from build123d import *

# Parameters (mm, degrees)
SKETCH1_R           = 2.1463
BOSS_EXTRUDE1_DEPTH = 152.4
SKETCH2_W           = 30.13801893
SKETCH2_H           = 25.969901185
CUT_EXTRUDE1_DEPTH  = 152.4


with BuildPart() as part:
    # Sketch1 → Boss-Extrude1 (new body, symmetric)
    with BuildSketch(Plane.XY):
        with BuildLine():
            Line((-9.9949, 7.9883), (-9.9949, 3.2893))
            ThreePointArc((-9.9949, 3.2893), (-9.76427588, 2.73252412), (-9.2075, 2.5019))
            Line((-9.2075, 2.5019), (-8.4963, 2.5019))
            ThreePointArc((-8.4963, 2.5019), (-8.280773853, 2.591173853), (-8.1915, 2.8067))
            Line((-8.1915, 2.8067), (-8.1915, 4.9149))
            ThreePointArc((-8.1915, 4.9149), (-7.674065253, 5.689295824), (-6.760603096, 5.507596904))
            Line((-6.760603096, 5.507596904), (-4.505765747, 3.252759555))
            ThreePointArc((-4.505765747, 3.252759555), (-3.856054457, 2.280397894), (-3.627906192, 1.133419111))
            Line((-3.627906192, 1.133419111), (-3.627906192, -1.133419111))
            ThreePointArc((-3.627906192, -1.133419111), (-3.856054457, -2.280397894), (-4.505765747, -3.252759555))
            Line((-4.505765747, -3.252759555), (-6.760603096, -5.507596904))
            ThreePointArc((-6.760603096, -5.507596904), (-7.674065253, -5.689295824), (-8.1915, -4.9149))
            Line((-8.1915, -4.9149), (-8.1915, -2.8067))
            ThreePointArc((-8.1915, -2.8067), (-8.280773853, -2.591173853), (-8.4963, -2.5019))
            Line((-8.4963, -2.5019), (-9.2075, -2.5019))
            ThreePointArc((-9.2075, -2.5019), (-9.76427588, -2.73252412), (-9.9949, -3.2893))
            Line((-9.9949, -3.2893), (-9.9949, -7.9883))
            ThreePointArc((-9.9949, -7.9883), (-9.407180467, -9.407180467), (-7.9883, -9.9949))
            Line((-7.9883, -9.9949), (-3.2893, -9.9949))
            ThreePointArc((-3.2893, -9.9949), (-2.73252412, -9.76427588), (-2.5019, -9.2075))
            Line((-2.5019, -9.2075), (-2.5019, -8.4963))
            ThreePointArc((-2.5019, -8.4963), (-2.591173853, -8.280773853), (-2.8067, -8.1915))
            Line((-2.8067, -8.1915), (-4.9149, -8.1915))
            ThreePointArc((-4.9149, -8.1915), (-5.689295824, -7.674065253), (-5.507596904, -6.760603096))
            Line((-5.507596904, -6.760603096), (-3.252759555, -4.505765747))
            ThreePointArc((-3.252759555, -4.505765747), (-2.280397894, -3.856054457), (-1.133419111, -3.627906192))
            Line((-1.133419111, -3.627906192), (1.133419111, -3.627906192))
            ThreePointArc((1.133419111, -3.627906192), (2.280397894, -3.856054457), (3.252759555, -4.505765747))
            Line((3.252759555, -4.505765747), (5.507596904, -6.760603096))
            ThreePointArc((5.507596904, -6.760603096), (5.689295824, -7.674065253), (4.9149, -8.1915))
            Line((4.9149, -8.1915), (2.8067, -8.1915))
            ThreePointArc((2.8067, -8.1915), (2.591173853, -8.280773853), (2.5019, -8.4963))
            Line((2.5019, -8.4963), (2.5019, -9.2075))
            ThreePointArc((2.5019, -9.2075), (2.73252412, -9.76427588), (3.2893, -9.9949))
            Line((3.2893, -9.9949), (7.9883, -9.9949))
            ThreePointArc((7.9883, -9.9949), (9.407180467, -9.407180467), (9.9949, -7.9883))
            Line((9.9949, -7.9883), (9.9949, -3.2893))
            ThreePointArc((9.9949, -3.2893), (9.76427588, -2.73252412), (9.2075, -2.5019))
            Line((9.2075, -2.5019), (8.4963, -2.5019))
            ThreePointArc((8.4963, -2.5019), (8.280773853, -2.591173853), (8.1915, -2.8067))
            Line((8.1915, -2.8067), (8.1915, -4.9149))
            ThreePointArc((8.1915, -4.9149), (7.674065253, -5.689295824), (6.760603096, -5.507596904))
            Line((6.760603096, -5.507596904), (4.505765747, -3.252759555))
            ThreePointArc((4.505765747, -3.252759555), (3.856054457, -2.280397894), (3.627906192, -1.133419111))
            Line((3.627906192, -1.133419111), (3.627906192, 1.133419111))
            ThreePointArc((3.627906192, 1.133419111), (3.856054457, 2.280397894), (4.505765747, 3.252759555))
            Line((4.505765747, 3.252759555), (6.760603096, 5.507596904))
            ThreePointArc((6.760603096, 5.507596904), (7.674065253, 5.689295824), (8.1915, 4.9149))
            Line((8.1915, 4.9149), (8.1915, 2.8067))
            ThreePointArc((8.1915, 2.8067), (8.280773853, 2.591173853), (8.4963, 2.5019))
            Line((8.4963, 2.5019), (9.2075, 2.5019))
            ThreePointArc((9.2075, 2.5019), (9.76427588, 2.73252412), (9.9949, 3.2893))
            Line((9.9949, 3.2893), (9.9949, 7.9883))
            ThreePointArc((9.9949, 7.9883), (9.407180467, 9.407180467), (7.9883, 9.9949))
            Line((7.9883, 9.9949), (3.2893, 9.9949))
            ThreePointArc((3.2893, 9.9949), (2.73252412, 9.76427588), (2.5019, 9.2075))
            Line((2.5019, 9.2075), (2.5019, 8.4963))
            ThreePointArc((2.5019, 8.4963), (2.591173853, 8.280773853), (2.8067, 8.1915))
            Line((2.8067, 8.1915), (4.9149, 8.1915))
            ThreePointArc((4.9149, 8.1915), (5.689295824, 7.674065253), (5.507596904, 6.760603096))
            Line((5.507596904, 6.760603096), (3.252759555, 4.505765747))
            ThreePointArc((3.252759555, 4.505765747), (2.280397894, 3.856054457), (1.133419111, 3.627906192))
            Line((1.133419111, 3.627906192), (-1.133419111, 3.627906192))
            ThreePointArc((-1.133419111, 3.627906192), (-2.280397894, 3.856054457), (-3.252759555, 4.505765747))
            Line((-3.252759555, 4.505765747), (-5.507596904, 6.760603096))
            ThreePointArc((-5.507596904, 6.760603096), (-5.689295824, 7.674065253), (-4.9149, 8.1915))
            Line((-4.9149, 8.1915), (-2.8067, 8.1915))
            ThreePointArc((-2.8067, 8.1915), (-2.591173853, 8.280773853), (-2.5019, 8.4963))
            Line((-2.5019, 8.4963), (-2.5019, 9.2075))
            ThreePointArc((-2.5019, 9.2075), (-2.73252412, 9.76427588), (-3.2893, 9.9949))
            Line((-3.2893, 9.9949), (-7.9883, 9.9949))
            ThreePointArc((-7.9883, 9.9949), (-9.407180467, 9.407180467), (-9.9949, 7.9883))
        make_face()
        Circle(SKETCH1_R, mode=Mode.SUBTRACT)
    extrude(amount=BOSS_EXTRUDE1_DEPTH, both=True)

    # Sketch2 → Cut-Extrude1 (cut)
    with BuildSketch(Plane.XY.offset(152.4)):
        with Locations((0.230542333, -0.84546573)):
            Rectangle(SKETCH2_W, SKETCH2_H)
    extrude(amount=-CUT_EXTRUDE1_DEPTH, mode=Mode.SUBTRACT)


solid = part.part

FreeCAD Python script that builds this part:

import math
import FreeCAD as App
import Part
import Sketcher
Q = App.Units.Quantity

doc = App.newDocument("Part")
body = doc.addObject("PartDesign::Body", "Body")

# Sketch on XY plane
sketch1 = doc.addObject("Sketcher::SketchObject", "Sketch")
body.addObject(sketch1)
sketch1.AttachmentSupport = (doc.XY_Plane, [""])
sketch1.MapMode = "FlatFace"
sketch1.addGeometry([
    Part.LineSegment(App.Vector(-9.99, 7.99, 0), App.Vector(-9.99, 3.29, 0)),  # 0
    Part.ArcOfCircle(Part.Circle(App.Vector(-9.21, 3.29, 0), App.Vector(0, 0, 1), 0.79), math.radians(180), math.radians(270)),  # 1
    Part.LineSegment(App.Vector(-9.21, 2.5, 0), App.Vector(-8.5, 2.5, 0)),  # 2
    Part.ArcOfCircle(Part.Circle(App.Vector(-8.5, 2.81, 0), App.Vector(0, 0, 1), 0.3), math.radians(-90), math.radians(0)),  # 3
    Part.LineSegment(App.Vector(-8.19, 2.81, 0), App.Vector(-8.19, 4.91, 0)),  # 4
    Part.ArcOfCircle(Part.Circle(App.Vector(-7.35, 4.91, 0), App.Vector(0, 0, 1), 0.84), math.radians(45), math.radians(180)),  # 5
    Part.LineSegment(App.Vector(-6.76, 5.51, 0), App.Vector(-4.51, 3.25, 0)),  # 6
    Part.ArcOfCircle(Part.Circle(App.Vector(-6.63, 1.13, 0), App.Vector(0, 0, 1), 3), math.radians(0), math.radians(45)),  # 7
    Part.LineSegment(App.Vector(-3.63, 1.13, 0), App.Vector(-3.63, -1.13, 0)),  # 8
    Part.ArcOfCircle(Part.Circle(App.Vector(-6.63, -1.13, 0), App.Vector(0, 0, 1), 3), math.radians(-45), math.radians(0)),  # 9
    Part.LineSegment(App.Vector(-4.51, -3.25, 0), App.Vector(-6.76, -5.51, 0)),  # 10
    Part.ArcOfCircle(Part.Circle(App.Vector(-7.35, -4.91, 0), App.Vector(0, 0, 1), 0.84), math.radians(180), math.radians(315)),  # 11
    Part.LineSegment(App.Vector(-8.19, -4.91, 0), App.Vector(-8.19, -2.81, 0)),  # 12
    Part.ArcOfCircle(Part.Circle(App.Vector(-8.5, -2.81, 0), App.Vector(0, 0, 1), 0.3), math.radians(0), math.radians(90)),  # 13
    Part.LineSegment(App.Vector(-8.5, -2.5, 0), App.Vector(-9.21, -2.5, 0)),  # 14
    Part.ArcOfCircle(Part.Circle(App.Vector(-9.21, -3.29, 0), App.Vector(0, 0, 1), 0.79), math.radians(90), math.radians(180)),  # 15
    Part.LineSegment(App.Vector(-9.99, -3.29, 0), App.Vector(-9.99, -7.99, 0)),  # 16
    Part.ArcOfCircle(Part.Circle(App.Vector(-7.99, -7.99, 0), App.Vector(0, 0, 1), 2.01), math.radians(180), math.radians(270)),  # 17
    Part.LineSegment(App.Vector(-7.99, -9.99, 0), App.Vector(-3.29, -9.99, 0)),  # 18
    Part.ArcOfCircle(Part.Circle(App.Vector(-3.29, -9.21, 0), App.Vector(0, 0, 1), 0.79), math.radians(-90), math.radians(0)),  # 19
    Part.LineSegment(App.Vector(-2.5, -9.21, 0), App.Vector(-2.5, -8.5, 0)),  # 20
    Part.ArcOfCircle(Part.Circle(App.Vector(-2.81, -8.5, 0), App.Vector(0, 0, 1), 0.3), math.radians(0), math.radians(90)),  # 21
    Part.LineSegment(App.Vector(-2.81, -8.19, 0), App.Vector(-4.91, -8.19, 0)),  # 22
    Part.ArcOfCircle(Part.Circle(App.Vector(-4.91, -7.35, 0), App.Vector(0, 0, 1), 0.84), math.radians(135), math.radians(270)),  # 23
    Part.LineSegment(App.Vector(-5.51, -6.76, 0), App.Vector(-3.25, -4.51, 0)),  # 24
    Part.ArcOfCircle(Part.Circle(App.Vector(-1.13, -6.63, 0), App.Vector(0, 0, 1), 3), math.radians(90), math.radians(135)),  # 25
    Part.LineSegment(App.Vector(-1.13, -3.63, 0), App.Vector(1.13, -3.63, 0)),  # 26
    Part.ArcOfCircle(Part.Circle(App.Vector(1.13, -6.63, 0), App.Vector(0, 0, 1), 3), math.radians(45), math.radians(90)),  # 27
    Part.LineSegment(App.Vector(3.25, -4.51, 0), App.Vector(5.51, -6.76, 0)),  # 28
    Part.ArcOfCircle(Part.Circle(App.Vector(4.91, -7.35, 0), App.Vector(0, 0, 1), 0.84), math.radians(-90), math.radians(45)),  # 29
    Part.LineSegment(App.Vector(4.91, -8.19, 0), App.Vector(2.81, -8.19, 0)),  # 30
    Part.ArcOfCircle(Part.Circle(App.Vector(2.81, -8.5, 0), App.Vector(0, 0, 1), 0.3), math.radians(90), math.radians(180)),  # 31
    Part.LineSegment(App.Vector(2.5, -8.5, 0), App.Vector(2.5, -9.21, 0)),  # 32
    Part.ArcOfCircle(Part.Circle(App.Vector(3.29, -9.21, 0), App.Vector(0, 0, 1), 0.79), math.radians(180), math.radians(270)),  # 33
    Part.LineSegment(App.Vector(3.29, -9.99, 0), App.Vector(7.99, -9.99, 0)),  # 34
    Part.ArcOfCircle(Part.Circle(App.Vector(7.99, -7.99, 0), App.Vector(0, 0, 1), 2.01), math.radians(-90), math.radians(0)),  # 35
    Part.LineSegment(App.Vector(9.99, -7.99, 0), App.Vector(9.99, -3.29, 0)),  # 36
    Part.ArcOfCircle(Part.Circle(App.Vector(9.21, -3.29, 0), App.Vector(0, 0, 1), 0.79), math.radians(0), math.radians(90)),  # 37
    Part.LineSegment(App.Vector(9.21, -2.5, 0), App.Vector(8.5, -2.5, 0)),  # 38
    Part.ArcOfCircle(Part.Circle(App.Vector(8.5, -2.81, 0), App.Vector(0, 0, 1), 0.3), math.radians(90), math.radians(180)),  # 39
    Part.LineSegment(App.Vector(8.19, -2.81, 0), App.Vector(8.19, -4.91, 0)),  # 40
    Part.ArcOfCircle(Part.Circle(App.Vector(7.35, -4.91, 0), App.Vector(0, 0, 1), 0.84), math.radians(-135), math.radians(0)),  # 41
    Part.LineSegment(App.Vector(6.76, -5.51, 0), App.Vector(4.51, -3.25, 0)),  # 42
    Part.ArcOfCircle(Part.Circle(App.Vector(6.63, -1.13, 0), App.Vector(0, 0, 1), 3), math.radians(180), math.radians(225)),  # 43
    Part.LineSegment(App.Vector(3.63, -1.13, 0), App.Vector(3.63, 1.13, 0)),  # 44
    Part.ArcOfCircle(Part.Circle(App.Vector(6.63, 1.13, 0), App.Vector(0, 0, 1), 3), math.radians(135), math.radians(180)),  # 45
    Part.LineSegment(App.Vector(4.51, 3.25, 0), App.Vector(6.76, 5.51, 0)),  # 46
    Part.ArcOfCircle(Part.Circle(App.Vector(7.35, 4.91, 0), App.Vector(0, 0, 1), 0.84), math.radians(0), math.radians(135)),  # 47
    Part.LineSegment(App.Vector(8.19, 4.91, 0), App.Vector(8.19, 2.81, 0)),  # 48
    Part.ArcOfCircle(Part.Circle(App.Vector(8.5, 2.81, 0), App.Vector(0, 0, 1), 0.3), math.radians(180), math.radians(270)),  # 49
    Part.LineSegment(App.Vector(8.5, 2.5, 0), App.Vector(9.21, 2.5, 0)),  # 50
    Part.ArcOfCircle(Part.Circle(App.Vector(9.21, 3.29, 0), App.Vector(0, 0, 1), 0.79), math.radians(-90), math.radians(0)),  # 51
    Part.LineSegment(App.Vector(9.99, 3.29, 0), App.Vector(9.99, 7.99, 0)),  # 52
    Part.ArcOfCircle(Part.Circle(App.Vector(7.99, 7.99, 0), App.Vector(0, 0, 1), 2.01), math.radians(0), math.radians(90)),  # 53
    Part.LineSegment(App.Vector(7.99, 9.99, 0), App.Vector(3.29, 9.99, 0)),  # 54
    Part.ArcOfCircle(Part.Circle(App.Vector(3.29, 9.21, 0), App.Vector(0, 0, 1), 0.79), math.radians(90), math.radians(180)),  # 55
    Part.LineSegment(App.Vector(2.5, 9.21, 0), App.Vector(2.5, 8.5, 0)),  # 56
    Part.ArcOfCircle(Part.Circle(App.Vector(2.81, 8.5, 0), App.Vector(0, 0, 1), 0.3), math.radians(180), math.radians(270)),  # 57
    Part.LineSegment(App.Vector(2.81, 8.19, 0), App.Vector(4.91, 8.19, 0)),  # 58
    Part.ArcOfCircle(Part.Circle(App.Vector(4.91, 7.35, 0), App.Vector(0, 0, 1), 0.84), math.radians(-45), math.radians(90)),  # 59
    Part.LineSegment(App.Vector(5.51, 6.76, 0), App.Vector(3.25, 4.51, 0)),  # 60
    Part.ArcOfCircle(Part.Circle(App.Vector(1.13, 6.63, 0), App.Vector(0, 0, 1), 3), math.radians(-90), math.radians(-45)),  # 61
    Part.LineSegment(App.Vector(1.13, 3.63, 0), App.Vector(-1.13, 3.63, 0)),  # 62
    Part.ArcOfCircle(Part.Circle(App.Vector(-1.13, 6.63, 0), App.Vector(0, 0, 1), 3), math.radians(-135), math.radians(-90)),  # 63
    Part.LineSegment(App.Vector(-3.25, 4.51, 0), App.Vector(-5.51, 6.76, 0)),  # 64
    Part.ArcOfCircle(Part.Circle(App.Vector(-4.91, 7.35, 0), App.Vector(0, 0, 1), 0.84), math.radians(90), math.radians(225)),  # 65
    Part.LineSegment(App.Vector(-4.91, 8.19, 0), App.Vector(-2.81, 8.19, 0)),  # 66
    Part.ArcOfCircle(Part.Circle(App.Vector(-2.81, 8.5, 0), App.Vector(0, 0, 1), 0.3), math.radians(-90), math.radians(0)),  # 67
    Part.LineSegment(App.Vector(-2.5, 8.5, 0), App.Vector(-2.5, 9.21, 0)),  # 68
    Part.ArcOfCircle(Part.Circle(App.Vector(-3.29, 9.21, 0), App.Vector(0, 0, 1), 0.79), math.radians(0), math.radians(90)),  # 69
    Part.LineSegment(App.Vector(-3.29, 9.99, 0), App.Vector(-7.99, 9.99, 0)),  # 70
    Part.ArcOfCircle(Part.Circle(App.Vector(-7.99, 7.99, 0), App.Vector(0, 0, 1), 2.01), math.radians(90), math.radians(180)),  # 71
    Part.Circle(App.Vector(0, 0, 0), App.Vector(0, 0, 1), 2.15),  # 72
], False)
sketch1.addConstraint([
    Sketcher.Constraint("Tangent", 0, 2, 1, 1),
    Sketcher.Constraint("Tangent", 1, 2, 2, 1),
    Sketcher.Constraint("Tangent", 2, 2, 3, 1),
    Sketcher.Constraint("Tangent", 3, 2, 4, 1),
    Sketcher.Constraint("Tangent", 4, 2, 5, 2),
    Sketcher.Constraint("Tangent", 5, 1, 6, 1),
    Sketcher.Constraint("Tangent", 6, 2, 7, 2),
    Sketcher.Constraint("Tangent", 7, 1, 8, 1),
    Sketcher.Constraint("Tangent", 8, 2, 9, 2),
    Sketcher.Constraint("Tangent", 9, 1, 10, 1),
    Sketcher.Constraint("Tangent", 10, 2, 11, 2),
    Sketcher.Constraint("Tangent", 11, 1, 12, 1),
    Sketcher.Constraint("Tangent", 12, 2, 13, 1),
    Sketcher.Constraint("Tangent", 13, 2, 14, 1),
    Sketcher.Constraint("Tangent", 14, 2, 15, 1),
    Sketcher.Constraint("Tangent", 15, 2, 16, 1),
    Sketcher.Constraint("Tangent", 16, 2, 17, 1),
    Sketcher.Constraint("Tangent", 17, 2, 18, 1),
    Sketcher.Constraint("Tangent", 18, 2, 19, 1),
    Sketcher.Constraint("Tangent", 19, 2, 20, 1),
    Sketcher.Constraint("Tangent", 20, 2, 21, 1),
    Sketcher.Constraint("Tangent", 21, 2, 22, 1),
    Sketcher.Constraint("Tangent", 22, 2, 23, 2),
    Sketcher.Constraint("Tangent", 23, 1, 24, 1),
    Sketcher.Constraint("Tangent", 24, 2, 25, 2),
    Sketcher.Constraint("Tangent", 25, 1, 26, 1),
    Sketcher.Constraint("Tangent", 26, 2, 27, 2),
    Sketcher.Constraint("Tangent", 27, 1, 28, 1),
    Sketcher.Constraint("Tangent", 28, 2, 29, 2),
    Sketcher.Constraint("Tangent", 29, 1, 30, 1),
    Sketcher.Constraint("Tangent", 30, 2, 31, 1),
    Sketcher.Constraint("Tangent", 31, 2, 32, 1),
    Sketcher.Constraint("Tangent", 32, 2, 33, 1),
    Sketcher.Constraint("Tangent", 33, 2, 34, 1),
    Sketcher.Constraint("Tangent", 34, 2, 35, 1),
    Sketcher.Constraint("Tangent", 35, 2, 36, 1),
    Sketcher.Constraint("Tangent", 36, 2, 37, 1),
    Sketcher.Constraint("Tangent", 37, 2, 38, 1),
    Sketcher.Constraint("Tangent", 38, 2, 39, 1),
    Sketcher.Constraint("Tangent", 39, 2, 40, 1),
    Sketcher.Constraint("Tangent", 40, 2, 41, 2),
    Sketcher.Constraint("Tangent", 41, 1, 42, 1),
    Sketcher.Constraint("Tangent", 42, 2, 43, 2),
    Sketcher.Constraint("Tangent", 43, 1, 44, 1),
    Sketcher.Constraint("Tangent", 44, 2, 45, 2),
    Sketcher.Constraint("Tangent", 45, 1, 46, 1),
    Sketcher.Constraint("Tangent", 46, 2, 47, 2),
    Sketcher.Constraint("Tangent", 47, 1, 48, 1),
    Sketcher.Constraint("Tangent", 48, 2, 49, 1),
    Sketcher.Constraint("Tangent", 49, 2, 50, 1),
    Sketcher.Constraint("Tangent", 50, 2, 51, 1),
    Sketcher.Constraint("Tangent", 51, 2, 52, 1),
    Sketcher.Constraint("Tangent", 52, 2, 53, 1),
    Sketcher.Constraint("Tangent", 53, 2, 54, 1),
    Sketcher.Constraint("Tangent", 54, 2, 55, 1),
    Sketcher.Constraint("Tangent", 55, 2, 56, 1),
    Sketcher.Constraint("Tangent", 56, 2, 57, 1),
    Sketcher.Constraint("Tangent", 57, 2, 58, 1),
    Sketcher.Constraint("Tangent", 58, 2, 59, 2),
    Sketcher.Constraint("Tangent", 59, 1, 60, 1),
    Sketcher.Constraint("Tangent", 60, 2, 61, 2),
    Sketcher.Constraint("Tangent", 61, 1, 62, 1),
    Sketcher.Constraint("Tangent", 62, 2, 63, 2),
    Sketcher.Constraint("Tangent", 63, 1, 64, 1),
    Sketcher.Constraint("Tangent", 64, 2, 65, 2),
    Sketcher.Constraint("Tangent", 65, 1, 66, 1),
    Sketcher.Constraint("Tangent", 66, 2, 67, 1),
    Sketcher.Constraint("Tangent", 67, 2, 68, 1),
    Sketcher.Constraint("Tangent", 68, 2, 69, 1),
    Sketcher.Constraint("Tangent", 69, 2, 70, 1),
    Sketcher.Constraint("Tangent", 70, 2, 71, 1),
    Sketcher.Constraint("Tangent", 71, 2, 0, 1),
    Sketcher.Constraint("Vertical", 0),
    Sketcher.Constraint("Horizontal", 2),
    Sketcher.Constraint("Vertical", 4),
    Sketcher.Constraint("Vertical", 8),
    Sketcher.Constraint("Vertical", 12),
    Sketcher.Constraint("Horizontal", 14),
    Sketcher.Constraint("Vertical", 16),
    Sketcher.Constraint("Horizontal", 18),
    Sketcher.Constraint("Vertical", 20),
    Sketcher.Constraint("Horizontal", 22),
    Sketcher.Constraint("Horizontal", 26),
    Sketcher.Constraint("Horizontal", 30),
    Sketcher.Constraint("Vertical", 32),
    Sketcher.Constraint("Horizontal", 34),
    Sketcher.Constraint("Vertical", 36),
    Sketcher.Constraint("Horizontal", 38),
    Sketcher.Constraint("Vertical", 40),
    Sketcher.Constraint("Vertical", 44),
    Sketcher.Constraint("Vertical", 48),
    Sketcher.Constraint("Horizontal", 50),
    Sketcher.Constraint("Vertical", 52),
    Sketcher.Constraint("Horizontal", 54),
    Sketcher.Constraint("Vertical", 56),
    Sketcher.Constraint("Horizontal", 58),
    Sketcher.Constraint("Horizontal", 62),
    Sketcher.Constraint("Horizontal", 66),
    Sketcher.Constraint("Vertical", 68),
    Sketcher.Constraint("Horizontal", 70),
    Sketcher.Constraint("Coincident", 72, 3, -1, 1),
    Sketcher.Constraint("Equal", 7, 9),
    Sketcher.Constraint("Equal", 5, 11),
    Sketcher.Constraint("Equal", 3, 13),
    Sketcher.Constraint("Equal", 1, 15),
    Sketcher.Constraint("Equal", 15, 19),
    Sketcher.Constraint("Equal", 13, 21),
    Sketcher.Constraint("Equal", 11, 23),
    Sketcher.Constraint("Equal", 9, 25),
    Sketcher.Constraint("Equal", 25, 27),
    Sketcher.Constraint("Equal", 23, 29),
    Sketcher.Constraint("Equal", 21, 31),
    Sketcher.Constraint("Equal", 19, 33),
    Sketcher.Constraint("Equal", 17, 35),
    Sketcher.Constraint("Equal", 33, 37),
    Sketcher.Constraint("Equal", 31, 39),
    Sketcher.Constraint("Equal", 29, 41),
    Sketcher.Constraint("Equal", 27, 43),
    Sketcher.Constraint("Equal", 43, 45),
    Sketcher.Constraint("Equal", 41, 47),
    Sketcher.Constraint("Equal", 39, 49),
    Sketcher.Constraint("Equal", 37, 51),
    Sketcher.Constraint("Equal", 35, 53),
    Sketcher.Constraint("Equal", 51, 55),
    Sketcher.Constraint("Equal", 49, 57),
    Sketcher.Constraint("Equal", 47, 59),
    Sketcher.Constraint("Equal", 45, 61),
    Sketcher.Constraint("Equal", 61, 63),
    Sketcher.Constraint("Equal", 59, 65),
    Sketcher.Constraint("Equal", 57, 67),
    Sketcher.Constraint("Equal", 55, 69),
    Sketcher.Constraint("Equal", 53, 71),
    Sketcher.Constraint("Symmetric", 1, 3, 37, 3, -1, 1),
    Sketcher.Constraint("Symmetric", 5, 3, 41, 3, -1, 1),
    Sketcher.Constraint("Symmetric", 7, 3, 43, 3, -1, 1),
    Sketcher.Constraint("Symmetric", 11, 3, 47, 3, -1, 1),
    Sketcher.Constraint("Symmetric", 15, 3, 51, 3, -1, 1),
    Sketcher.Constraint("Symmetric", 19, 3, 55, 3, -1, 1),
    Sketcher.Constraint("Symmetric", 23, 3, 59, 3, -1, 1),
    Sketcher.Constraint("Symmetric", 25, 3, 61, 3, -1, 1),
    Sketcher.Constraint("Symmetric", 29, 3, 65, 3, -1, 1),
    Sketcher.Constraint("Symmetric", 33, 3, 69, 3, -1, 1),
    Sketcher.Constraint("Symmetric", 23, 3, 29, 3, -2),
    Sketcher.Constraint("Symmetric", 19, 3, 33, 3, -2),
    Sketcher.Constraint("Symmetric", 15, 3, 37, 3, -2),
    Sketcher.Constraint("Symmetric", 11, 3, 41, 3, -2),
    Sketcher.Constraint("Perpendicular", 6, 10),
    Sketcher.Constraint("Parallel", 10, 24),
    Sketcher.Constraint("Perpendicular", 24, 28),
    Sketcher.Constraint("Perpendicular", 42, 46),
    Sketcher.Constraint("Perpendicular", 60, 64),
    Sketcher.Constraint("Horizontal", 9, 3, 43, 3),
    Sketcher.Constraint("Equal", 70, 0),
    Sketcher.Constraint("Equal", 66, 4),
    Sketcher.Constraint("Equal", 62, 8),
    Sketcher.Constraint("Equal", 50, 20),
    Sketcher.Constraint("Equal", 10, 24),
    Sketcher.Constraint("Diameter", 72, Q("0.169 in")),
    Sketcher.Constraint("Radius", 1, Q("0.031 in")),
    Sketcher.Constraint("Radius", 3, Q("0.012 in")),
    Sketcher.Constraint("Radius", 5, Q("0.033 in")),
    Sketcher.Constraint("Radius", 7, Q("0.118 in")),
    Sketcher.Constraint("Radius", 17, Q("0.079 in")),
    Sketcher.Constraint("DistanceX", 2, 1, 2, 2, Q("0.028 in")),
    Sketcher.Constraint("DistanceX", 18, 1, 18, 2, Q("0.185 in")),
    Sketcher.Constraint("DistanceX", 22, 2, 22, 1, Q("0.083 in")),
    Sketcher.Constraint("DistanceX", 1, 3, -1, 1, Q("0.3625 in")),
    Sketcher.Constraint("DistanceX", 26, 1, 26, 2, 2.266838),
])
pad1 = doc.addObject("PartDesign::Pad", "Pad")
body.addObject(pad1)
pad1.Profile = sketch1
pad1.Length = Q("12 in")
pad1.Midplane = True

# Sketch on XY plane
sketch2 = doc.addObject("Sketcher::SketchObject", "Sketch001")
body.addObject(sketch2)
sketch2.AttachmentSupport = (doc.XY_Plane, [""])
sketch2.MapMode = "FlatFace"
sketch2.AttachmentOffset = App.Placement(App.Vector(0, 0, 6 * 25.4), App.Rotation())
sketch2.addGeometry([
    Part.LineSegment(App.Vector(-15, 12, 0), App.Vector(-15, -14, 0)),
    Part.LineSegment(App.Vector(-15, -14, 0), App.Vector(15, -14, 0)),
    Part.LineSegment(App.Vector(15, -14, 0), App.Vector(15, 12, 0)),
    Part.LineSegment(App.Vector(15, 12, 0), App.Vector(-15, 12, 0)),
], False)
sketch2.addConstraint([
    Sketcher.Constraint("Coincident", 0, 2, 1, 1),
    Sketcher.Constraint("Coincident", 1, 2, 2, 1),
    Sketcher.Constraint("Coincident", 2, 2, 3, 1),
    Sketcher.Constraint("Coincident", 3, 2, 0, 1),
    Sketcher.Constraint("Vertical", 0),
    Sketcher.Constraint("Horizontal", 1),
    Sketcher.Constraint("Vertical", 2),
    Sketcher.Constraint("Horizontal", 3),
    Sketcher.Constraint("DistanceY", 0, 2, 0, 1, 25.969901),
    Sketcher.Constraint("DistanceX", 1, 1, 1, 2, 30.138019),
    Sketcher.Constraint("DistanceX", -1, 1, 1, 2, 15.299552),
    Sketcher.Constraint("DistanceY", 0, 2, -1, 1, 13.830416),
])
pocket1 = doc.addObject("PartDesign::Pocket", "Pocket")
body.addObject(pocket1)
pocket1.Profile = sketch2
pocket1.Length = Q("6 in")

doc.recompute()
